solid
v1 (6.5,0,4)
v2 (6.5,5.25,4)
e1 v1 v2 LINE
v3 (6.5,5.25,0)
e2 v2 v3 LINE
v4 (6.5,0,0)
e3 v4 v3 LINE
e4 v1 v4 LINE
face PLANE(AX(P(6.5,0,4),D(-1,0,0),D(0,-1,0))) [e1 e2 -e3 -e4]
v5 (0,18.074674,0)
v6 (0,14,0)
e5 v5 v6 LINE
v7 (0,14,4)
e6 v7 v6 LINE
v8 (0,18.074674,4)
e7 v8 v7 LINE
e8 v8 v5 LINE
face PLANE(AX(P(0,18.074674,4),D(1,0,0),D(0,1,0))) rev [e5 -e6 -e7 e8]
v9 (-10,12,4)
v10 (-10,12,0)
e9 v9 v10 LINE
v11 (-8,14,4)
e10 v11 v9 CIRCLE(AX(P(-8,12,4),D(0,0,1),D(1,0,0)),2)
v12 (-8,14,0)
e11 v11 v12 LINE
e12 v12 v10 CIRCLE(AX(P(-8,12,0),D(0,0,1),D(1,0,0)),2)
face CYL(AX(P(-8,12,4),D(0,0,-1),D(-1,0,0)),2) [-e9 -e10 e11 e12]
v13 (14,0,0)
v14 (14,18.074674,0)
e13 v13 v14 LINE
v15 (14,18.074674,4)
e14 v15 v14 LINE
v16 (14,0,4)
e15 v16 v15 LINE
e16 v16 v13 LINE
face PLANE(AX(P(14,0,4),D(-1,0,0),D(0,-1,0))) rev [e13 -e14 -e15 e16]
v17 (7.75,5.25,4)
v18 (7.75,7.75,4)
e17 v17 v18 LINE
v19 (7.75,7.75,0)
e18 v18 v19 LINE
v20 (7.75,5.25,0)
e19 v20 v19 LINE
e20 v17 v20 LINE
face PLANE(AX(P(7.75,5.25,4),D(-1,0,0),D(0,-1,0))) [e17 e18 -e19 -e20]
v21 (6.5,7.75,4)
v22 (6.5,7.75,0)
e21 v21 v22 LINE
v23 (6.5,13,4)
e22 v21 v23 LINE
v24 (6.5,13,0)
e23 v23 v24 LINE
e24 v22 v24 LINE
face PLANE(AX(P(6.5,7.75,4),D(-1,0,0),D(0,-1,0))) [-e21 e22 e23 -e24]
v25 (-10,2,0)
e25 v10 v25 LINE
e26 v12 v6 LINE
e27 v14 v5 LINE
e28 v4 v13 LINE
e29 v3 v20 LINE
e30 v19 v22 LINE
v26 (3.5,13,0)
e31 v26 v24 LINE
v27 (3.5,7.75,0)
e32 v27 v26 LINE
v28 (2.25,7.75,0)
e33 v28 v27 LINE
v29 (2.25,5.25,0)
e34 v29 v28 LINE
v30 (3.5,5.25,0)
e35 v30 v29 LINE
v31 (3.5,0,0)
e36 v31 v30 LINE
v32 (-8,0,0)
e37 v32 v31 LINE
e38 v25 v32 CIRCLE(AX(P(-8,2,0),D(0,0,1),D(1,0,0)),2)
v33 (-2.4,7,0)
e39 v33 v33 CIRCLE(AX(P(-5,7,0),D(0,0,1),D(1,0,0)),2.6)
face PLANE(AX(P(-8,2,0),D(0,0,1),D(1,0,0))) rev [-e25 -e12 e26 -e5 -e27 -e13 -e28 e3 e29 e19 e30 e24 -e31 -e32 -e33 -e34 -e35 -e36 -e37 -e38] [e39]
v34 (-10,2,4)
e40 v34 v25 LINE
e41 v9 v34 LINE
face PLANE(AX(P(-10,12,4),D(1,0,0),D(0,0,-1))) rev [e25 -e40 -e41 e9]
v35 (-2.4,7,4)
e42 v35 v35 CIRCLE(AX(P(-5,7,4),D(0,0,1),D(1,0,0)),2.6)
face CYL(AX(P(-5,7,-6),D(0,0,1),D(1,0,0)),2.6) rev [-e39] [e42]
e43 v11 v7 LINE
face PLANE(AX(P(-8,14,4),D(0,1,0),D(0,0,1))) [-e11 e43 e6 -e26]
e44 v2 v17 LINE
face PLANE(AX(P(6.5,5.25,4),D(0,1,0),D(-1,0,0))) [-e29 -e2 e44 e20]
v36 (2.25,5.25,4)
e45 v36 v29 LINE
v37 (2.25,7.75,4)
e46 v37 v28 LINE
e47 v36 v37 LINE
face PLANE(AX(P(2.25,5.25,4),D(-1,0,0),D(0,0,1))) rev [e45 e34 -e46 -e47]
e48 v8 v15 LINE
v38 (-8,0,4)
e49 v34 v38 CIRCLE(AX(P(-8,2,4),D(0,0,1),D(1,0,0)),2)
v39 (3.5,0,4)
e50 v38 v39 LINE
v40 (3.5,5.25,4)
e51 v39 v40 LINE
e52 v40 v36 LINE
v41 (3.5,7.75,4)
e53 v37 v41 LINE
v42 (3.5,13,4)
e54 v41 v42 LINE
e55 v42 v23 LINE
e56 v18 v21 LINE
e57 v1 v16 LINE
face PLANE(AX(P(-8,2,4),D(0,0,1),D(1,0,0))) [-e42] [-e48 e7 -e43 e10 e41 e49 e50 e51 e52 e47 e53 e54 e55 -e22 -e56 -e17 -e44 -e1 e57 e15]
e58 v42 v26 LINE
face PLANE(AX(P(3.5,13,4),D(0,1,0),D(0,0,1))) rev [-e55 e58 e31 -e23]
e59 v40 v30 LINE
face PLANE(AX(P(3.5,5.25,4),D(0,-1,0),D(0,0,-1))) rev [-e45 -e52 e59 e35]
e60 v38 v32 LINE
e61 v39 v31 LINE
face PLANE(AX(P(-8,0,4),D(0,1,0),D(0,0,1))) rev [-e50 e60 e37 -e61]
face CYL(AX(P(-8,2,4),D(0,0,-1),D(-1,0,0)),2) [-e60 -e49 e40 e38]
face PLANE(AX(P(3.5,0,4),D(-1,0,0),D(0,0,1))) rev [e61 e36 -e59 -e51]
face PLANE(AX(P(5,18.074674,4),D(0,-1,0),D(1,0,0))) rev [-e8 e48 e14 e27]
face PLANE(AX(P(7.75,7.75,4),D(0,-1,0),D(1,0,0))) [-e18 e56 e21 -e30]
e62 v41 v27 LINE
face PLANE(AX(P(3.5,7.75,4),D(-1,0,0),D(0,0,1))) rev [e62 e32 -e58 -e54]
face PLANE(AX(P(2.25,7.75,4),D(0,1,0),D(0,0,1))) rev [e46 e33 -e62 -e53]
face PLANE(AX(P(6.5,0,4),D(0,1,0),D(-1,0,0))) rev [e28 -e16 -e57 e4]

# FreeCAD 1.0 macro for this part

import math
import FreeCAD as App
import Part
import Sketcher

V = App.Vector
Q = App.Units.Quantity

doc = App.newDocument("Part")
params = doc.addObject("Spreadsheet::Sheet", "Params")
for row, (alias, value) in enumerate([
    ("sketch1_radius", "2 mm"),
    ("sketch1_width", "14 mm"),
    ("sketch1_width2", "8 mm"),
    ("sketch1_width3", "3 mm"),
    ("sketch1_height", "10 mm"),
    ("pad1_length", "4 mm"),
    ("sketch2_diameter", "5.2 mm"),
    ("pocket1_length", "10 mm"),
], start=1):
    params.set(f"A{row}", alias)
    params.set(f"B{row}", "=" + value)
    params.setAlias(f"B{row}", alias)

body = doc.addObject("PartDesign::Body", "Body")

sketch1 = doc.addObject("Sketcher::SketchObject", "Sketch")
body.addObject(sketch1)
sketch1.AttachmentSupport = (doc.XY_Plane, [""])
sketch1.MapMode = "FlatFace"
sketch1.addGeometry(Part.LineSegment(V(14, 0, 0), V(14, 18.1, 0)), False)
sketch1.addGeometry(Part.LineSegment(V(14, 18.1, 0), V(0, 18.1, 0)), False)
sketch1.addGeometry(Part.LineSegment(V(0, 18.1, 0), V(0, 14, 0)), False)
sketch1.addGeometry(Part.LineSegment(V(0, 14, 0), V(-8, 14, 0)), False)
sketch1.addGeometry(Part.ArcOfCircle(Part.Circle(V(-8, 12, 0), V(0, 0, 1), 2), math.radians(90), math.radians(180)), False)
sketch1.addGeometry(Part.LineSegment(V(-10, 12, 0), V(-10, 2, 0)), False)
sketch1.addGeometry(Part.ArcOfCircle(Part.Circle(V(-8, 2, 0), V(0, 0, 1), 2), math.radians(-180), math.radians(-90)), False)
sketch1.addGeometry(Part.LineSegment(V(-8, 0, 0), V(3.5, 0, 0)), False)
sketch1.addGeometry(Part.LineSegment(V(3.5, 0, 0), V(3.5, 5.2, 0)), False)
sketch1.addGeometry(Part.LineSegment(V(3.5, 5.2, 0), V(2.2, 5.2, 0)), False)
sketch1.addGeometry(Part.LineSegment(V(2.2, 5.2, 0), V(2.2, 7.8, 0)), False)
sketch1.addGeometry(Part.LineSegment(V(2.2, 7.8, 0), V(3.5, 7.8, 0)), False)
sketch1.addGeometry(Part.LineSegment(V(3.5, 7.8, 0), V(3.5, 13, 0)), False)
sketch1.addGeometry(Part.LineSegment(V(3.5, 13, 0), V(6.5, 13, 0)), False)
sketch1.addGeometry(Part.LineSegment(V(6.5, 13, 0), V(6.5, 7.8, 0)), False)
sketch1.addGeometry(Part.LineSegment(V(6.5, 7.8, 0), V(7.8, 7.8, 0)), False)
sketch1.addGeometry(Part.LineSegment(V(7.8, 7.8, 0), V(7.8, 5.2, 0)), False)
sketch1.addGeometry(Part.LineSegment(V(7.8, 5.2, 0), V(6.5, 5.2, 0)), False)
sketch1.addGeometry(Part.LineSegment(V(6.5, 5.2, 0), V(6.5, 0, 0)), False)
sketch1.addGeometry(Part.LineSegment(V(6.5, 0, 0), V(14, 0, 0)), False)
sketch1.addConstraint(Sketcher.Constraint("Coincident", 0, 2, 1, 1))
sketch1.addConstraint(Sketcher.Constraint("Coincident", 1, 2, 2, 1))
sketch1.addConstraint(Sketcher.Constraint("Coincident", 2, 2, 3, 1))
sketch1.addConstraint(Sketcher.Constraint("Tangent", 3, 2, 4, 1))
sketch1.addConstraint(Sketcher.Constraint("Tangent", 4, 2, 5, 1))
sketch1.addConstraint(Sketcher.Constraint("Tangent", 5, 2, 6, 1))
sketch1.addConstraint(Sketcher.Constraint("Tangent", 6, 2, 7, 1))
sketch1.addConstraint(Sketcher.Constraint("Coincident", 7, 2, 8, 1))
sketch1.addConstraint(Sketcher.Constraint("Coincident", 8, 2, 9, 1))
sketch1.addConstraint(Sketcher.Constraint("Coincident", 9, 2, 10, 1))
sketch1.addConstraint(Sketcher.Constraint("Coincident", 10, 2, 11, 1))
sketch1.addConstraint(Sketcher.Constraint("Coincident", 11, 2, 12, 1))
sketch1.addConstraint(Sketcher.Constraint("Coincident", 12, 2, 13, 1))
sketch1.addConstraint(Sketcher.Constraint("Coincident", 13, 2, 14, 1))
sketch1.addConstraint(Sketcher.Constraint("Coincident", 14, 2, 15, 1))
sketch1.addConstraint(Sketcher.Constraint("Coincident", 15, 2, 16, 1))
sketch1.addConstraint(Sketcher.Constraint("Coincident", 16, 2, 17, 1))
sketch1.addConstraint(Sketcher.Constraint("Coincident", 17, 2, 18, 1))
sketch1.addConstraint(Sketcher.Constraint("Coincident", 18, 2, 19, 1))
sketch1.addConstraint(Sketcher.Constraint("Coincident", 19, 2, 0, 1))
sketch1.addConstraint(Sketcher.Constraint("Vertical", 0))
sketch1.addConstraint(Sketcher.Constraint("Horizontal", 1))
sketch1.addConstraint(Sketcher.Constraint("Vertical", 2))
sketch1.addConstraint(Sketcher.Constraint("Horizontal", 3))
sketch1.addConstraint(Sketcher.Constraint("Vertical", 5))
sketch1.addConstraint(Sketcher.Constraint("Horizontal", 7))
sketch1.addConstraint(Sketcher.Constraint("Vertical", 8))
sketch1.addConstraint(Sketcher.Constraint("Horizontal", 9))
sketch1.addConstraint(Sketcher.Constraint("Vertical", 10))
sketch1.addConstraint(Sketcher.Constraint("Horizontal", 11))
sketch1.addConstraint(Sketcher.Constraint("Vertical", 12))
sketch1.addConstraint(Sketcher.Constraint("Horizontal", 13))
sketch1.addConstraint(Sketcher.Constraint("Vertical", 14))
sketch1.addConstraint(Sketcher.Constraint("Horizontal", 15))
sketch1.addConstraint(Sketcher.Constraint("Vertical", 16))
sketch1.addConstraint(Sketcher.Constraint("Horizontal", 17))
sketch1.addConstraint(Sketcher.Constraint("Vertical", 18))
sketch1.addConstraint(Sketcher.Constraint("Horizontal", 19))
sketch1.addConstraint(Sketcher.Constraint("Equal", 4, 6))
sketch1.addConstraint(Sketcher.Constraint("PointOnObject", 1, 2, -2))
sketch1.addConstraint(Sketcher.Constraint("PointOnObject", 6, 2, -1))
sketch1.addConstraint(Sketcher.Constraint("PointOnObject", 18, 2, -1))
sketch1.addConstraint(Sketcher.Constraint("Horizontal", 11, 2, 14, 2))
sketch1.addConstraint(Sketcher.Constraint("Horizontal", 9, 2, 16, 2))
sketch1.addConstraint(Sketcher.Constraint("Vertical", 8, 2, 11, 2))
sketch1.addConstraint(Sketcher.Constraint("Vertical", 14, 2, 17, 2))
sketch1.addConstraint(Sketcher.Constraint("Equal", 11, 15))
sketch1.addConstraint(Sketcher.Constraint("Equal", 8, 12))
sketch1.addConstraint(Sketcher.Constraint("Radius", 4, Q("2 mm")))
sketch1.addConstraint(Sketcher.Constraint("DistanceX", 1, 2, 1, 1, Q("14 mm")))
sketch1.addConstraint(Sketcher.Constraint("DistanceX", 3, 2, 3, 1, Q("8 mm")))
sketch1.addConstraint(Sketcher.Constraint("DistanceX", 13, 1, 13, 2, Q("3 mm")))
sketch1.addConstraint(Sketcher.Constraint("DistanceY", 5, 2, 5, 1, Q("10 mm")))
sketch1.addConstraint(Sketcher.Constraint("DistanceX", 7, 1, 7, 2, Q("11.5 mm")))
sketch1.addConstraint(Sketcher.Constraint("DistanceY", 10, 1, 10, 2, Q("2.5 mm")))
sketch1.addConstraint(Sketcher.Constraint("DistanceY", -1, 1, 12, 2, Q("13 mm")))
sketch1.addConstraint(Sketcher.Constraint("DistanceX", 9, 2, 9, 1, Q("1.25 mm")))
sketch1.addConstraint(Sketcher.Constraint("DistanceY", 0, 1, 0, 2, Q("18.074674 mm")))
sketch1.setExpression("Constraints[48]", "Params.sketch1_radius")
sketch1.setExpression("Constraints[49]", "Params.sketch1_width")
sketch1.setExpression("Constraints[50]", "Params.sketch1_width2")
sketch1.setExpression("Constraints[51]", "Params.sketch1_width3")
sketch1.setExpression("Constraints[52]", "Params.sketch1_height")
pad1 = doc.addObject("PartDesign::Pad", "Pad")
body.addObject(pad1)
pad1.Profile = sketch1
pad1.setExpression("Length", "Params.pad1_length")

sketch2 = doc.addObject("Sketcher::SketchObject", "Sketch001")
body.addObject(sketch2)
sketch2.AttachmentSupport = (doc.XY_Plane, [""])
sketch2.MapMode = "FlatFace"
sketch2.AttachmentOffset = App.Placement(V(0, 0, 4), App.Rotation())
sketch2.addGeometry(Part.Circle(V(-5, 7, 0), V(0, 0, 1), 2.6), False)
sketch2.addConstraint(Sketcher.Constraint("Diameter", 0, Q("5.2 mm")))
sketch2.addConstraint(Sketcher.Constraint("DistanceX", 0, 3, -1, 1, Q("5 mm")))
sketch2.addConstraint(Sketcher.Constraint("DistanceY", -1, 1, 0, 3, Q("7 mm")))
sketch2.setExpression("Constraints[0]", "Params.sketch2_diameter")
pocket1 = doc.addObject("PartDesign::Pocket", "Pocket")
body.addObject(pocket1)
pocket1.Profile = sketch2
pocket1.setExpression("Length", "Params.pocket1_length")

doc.recompute()
